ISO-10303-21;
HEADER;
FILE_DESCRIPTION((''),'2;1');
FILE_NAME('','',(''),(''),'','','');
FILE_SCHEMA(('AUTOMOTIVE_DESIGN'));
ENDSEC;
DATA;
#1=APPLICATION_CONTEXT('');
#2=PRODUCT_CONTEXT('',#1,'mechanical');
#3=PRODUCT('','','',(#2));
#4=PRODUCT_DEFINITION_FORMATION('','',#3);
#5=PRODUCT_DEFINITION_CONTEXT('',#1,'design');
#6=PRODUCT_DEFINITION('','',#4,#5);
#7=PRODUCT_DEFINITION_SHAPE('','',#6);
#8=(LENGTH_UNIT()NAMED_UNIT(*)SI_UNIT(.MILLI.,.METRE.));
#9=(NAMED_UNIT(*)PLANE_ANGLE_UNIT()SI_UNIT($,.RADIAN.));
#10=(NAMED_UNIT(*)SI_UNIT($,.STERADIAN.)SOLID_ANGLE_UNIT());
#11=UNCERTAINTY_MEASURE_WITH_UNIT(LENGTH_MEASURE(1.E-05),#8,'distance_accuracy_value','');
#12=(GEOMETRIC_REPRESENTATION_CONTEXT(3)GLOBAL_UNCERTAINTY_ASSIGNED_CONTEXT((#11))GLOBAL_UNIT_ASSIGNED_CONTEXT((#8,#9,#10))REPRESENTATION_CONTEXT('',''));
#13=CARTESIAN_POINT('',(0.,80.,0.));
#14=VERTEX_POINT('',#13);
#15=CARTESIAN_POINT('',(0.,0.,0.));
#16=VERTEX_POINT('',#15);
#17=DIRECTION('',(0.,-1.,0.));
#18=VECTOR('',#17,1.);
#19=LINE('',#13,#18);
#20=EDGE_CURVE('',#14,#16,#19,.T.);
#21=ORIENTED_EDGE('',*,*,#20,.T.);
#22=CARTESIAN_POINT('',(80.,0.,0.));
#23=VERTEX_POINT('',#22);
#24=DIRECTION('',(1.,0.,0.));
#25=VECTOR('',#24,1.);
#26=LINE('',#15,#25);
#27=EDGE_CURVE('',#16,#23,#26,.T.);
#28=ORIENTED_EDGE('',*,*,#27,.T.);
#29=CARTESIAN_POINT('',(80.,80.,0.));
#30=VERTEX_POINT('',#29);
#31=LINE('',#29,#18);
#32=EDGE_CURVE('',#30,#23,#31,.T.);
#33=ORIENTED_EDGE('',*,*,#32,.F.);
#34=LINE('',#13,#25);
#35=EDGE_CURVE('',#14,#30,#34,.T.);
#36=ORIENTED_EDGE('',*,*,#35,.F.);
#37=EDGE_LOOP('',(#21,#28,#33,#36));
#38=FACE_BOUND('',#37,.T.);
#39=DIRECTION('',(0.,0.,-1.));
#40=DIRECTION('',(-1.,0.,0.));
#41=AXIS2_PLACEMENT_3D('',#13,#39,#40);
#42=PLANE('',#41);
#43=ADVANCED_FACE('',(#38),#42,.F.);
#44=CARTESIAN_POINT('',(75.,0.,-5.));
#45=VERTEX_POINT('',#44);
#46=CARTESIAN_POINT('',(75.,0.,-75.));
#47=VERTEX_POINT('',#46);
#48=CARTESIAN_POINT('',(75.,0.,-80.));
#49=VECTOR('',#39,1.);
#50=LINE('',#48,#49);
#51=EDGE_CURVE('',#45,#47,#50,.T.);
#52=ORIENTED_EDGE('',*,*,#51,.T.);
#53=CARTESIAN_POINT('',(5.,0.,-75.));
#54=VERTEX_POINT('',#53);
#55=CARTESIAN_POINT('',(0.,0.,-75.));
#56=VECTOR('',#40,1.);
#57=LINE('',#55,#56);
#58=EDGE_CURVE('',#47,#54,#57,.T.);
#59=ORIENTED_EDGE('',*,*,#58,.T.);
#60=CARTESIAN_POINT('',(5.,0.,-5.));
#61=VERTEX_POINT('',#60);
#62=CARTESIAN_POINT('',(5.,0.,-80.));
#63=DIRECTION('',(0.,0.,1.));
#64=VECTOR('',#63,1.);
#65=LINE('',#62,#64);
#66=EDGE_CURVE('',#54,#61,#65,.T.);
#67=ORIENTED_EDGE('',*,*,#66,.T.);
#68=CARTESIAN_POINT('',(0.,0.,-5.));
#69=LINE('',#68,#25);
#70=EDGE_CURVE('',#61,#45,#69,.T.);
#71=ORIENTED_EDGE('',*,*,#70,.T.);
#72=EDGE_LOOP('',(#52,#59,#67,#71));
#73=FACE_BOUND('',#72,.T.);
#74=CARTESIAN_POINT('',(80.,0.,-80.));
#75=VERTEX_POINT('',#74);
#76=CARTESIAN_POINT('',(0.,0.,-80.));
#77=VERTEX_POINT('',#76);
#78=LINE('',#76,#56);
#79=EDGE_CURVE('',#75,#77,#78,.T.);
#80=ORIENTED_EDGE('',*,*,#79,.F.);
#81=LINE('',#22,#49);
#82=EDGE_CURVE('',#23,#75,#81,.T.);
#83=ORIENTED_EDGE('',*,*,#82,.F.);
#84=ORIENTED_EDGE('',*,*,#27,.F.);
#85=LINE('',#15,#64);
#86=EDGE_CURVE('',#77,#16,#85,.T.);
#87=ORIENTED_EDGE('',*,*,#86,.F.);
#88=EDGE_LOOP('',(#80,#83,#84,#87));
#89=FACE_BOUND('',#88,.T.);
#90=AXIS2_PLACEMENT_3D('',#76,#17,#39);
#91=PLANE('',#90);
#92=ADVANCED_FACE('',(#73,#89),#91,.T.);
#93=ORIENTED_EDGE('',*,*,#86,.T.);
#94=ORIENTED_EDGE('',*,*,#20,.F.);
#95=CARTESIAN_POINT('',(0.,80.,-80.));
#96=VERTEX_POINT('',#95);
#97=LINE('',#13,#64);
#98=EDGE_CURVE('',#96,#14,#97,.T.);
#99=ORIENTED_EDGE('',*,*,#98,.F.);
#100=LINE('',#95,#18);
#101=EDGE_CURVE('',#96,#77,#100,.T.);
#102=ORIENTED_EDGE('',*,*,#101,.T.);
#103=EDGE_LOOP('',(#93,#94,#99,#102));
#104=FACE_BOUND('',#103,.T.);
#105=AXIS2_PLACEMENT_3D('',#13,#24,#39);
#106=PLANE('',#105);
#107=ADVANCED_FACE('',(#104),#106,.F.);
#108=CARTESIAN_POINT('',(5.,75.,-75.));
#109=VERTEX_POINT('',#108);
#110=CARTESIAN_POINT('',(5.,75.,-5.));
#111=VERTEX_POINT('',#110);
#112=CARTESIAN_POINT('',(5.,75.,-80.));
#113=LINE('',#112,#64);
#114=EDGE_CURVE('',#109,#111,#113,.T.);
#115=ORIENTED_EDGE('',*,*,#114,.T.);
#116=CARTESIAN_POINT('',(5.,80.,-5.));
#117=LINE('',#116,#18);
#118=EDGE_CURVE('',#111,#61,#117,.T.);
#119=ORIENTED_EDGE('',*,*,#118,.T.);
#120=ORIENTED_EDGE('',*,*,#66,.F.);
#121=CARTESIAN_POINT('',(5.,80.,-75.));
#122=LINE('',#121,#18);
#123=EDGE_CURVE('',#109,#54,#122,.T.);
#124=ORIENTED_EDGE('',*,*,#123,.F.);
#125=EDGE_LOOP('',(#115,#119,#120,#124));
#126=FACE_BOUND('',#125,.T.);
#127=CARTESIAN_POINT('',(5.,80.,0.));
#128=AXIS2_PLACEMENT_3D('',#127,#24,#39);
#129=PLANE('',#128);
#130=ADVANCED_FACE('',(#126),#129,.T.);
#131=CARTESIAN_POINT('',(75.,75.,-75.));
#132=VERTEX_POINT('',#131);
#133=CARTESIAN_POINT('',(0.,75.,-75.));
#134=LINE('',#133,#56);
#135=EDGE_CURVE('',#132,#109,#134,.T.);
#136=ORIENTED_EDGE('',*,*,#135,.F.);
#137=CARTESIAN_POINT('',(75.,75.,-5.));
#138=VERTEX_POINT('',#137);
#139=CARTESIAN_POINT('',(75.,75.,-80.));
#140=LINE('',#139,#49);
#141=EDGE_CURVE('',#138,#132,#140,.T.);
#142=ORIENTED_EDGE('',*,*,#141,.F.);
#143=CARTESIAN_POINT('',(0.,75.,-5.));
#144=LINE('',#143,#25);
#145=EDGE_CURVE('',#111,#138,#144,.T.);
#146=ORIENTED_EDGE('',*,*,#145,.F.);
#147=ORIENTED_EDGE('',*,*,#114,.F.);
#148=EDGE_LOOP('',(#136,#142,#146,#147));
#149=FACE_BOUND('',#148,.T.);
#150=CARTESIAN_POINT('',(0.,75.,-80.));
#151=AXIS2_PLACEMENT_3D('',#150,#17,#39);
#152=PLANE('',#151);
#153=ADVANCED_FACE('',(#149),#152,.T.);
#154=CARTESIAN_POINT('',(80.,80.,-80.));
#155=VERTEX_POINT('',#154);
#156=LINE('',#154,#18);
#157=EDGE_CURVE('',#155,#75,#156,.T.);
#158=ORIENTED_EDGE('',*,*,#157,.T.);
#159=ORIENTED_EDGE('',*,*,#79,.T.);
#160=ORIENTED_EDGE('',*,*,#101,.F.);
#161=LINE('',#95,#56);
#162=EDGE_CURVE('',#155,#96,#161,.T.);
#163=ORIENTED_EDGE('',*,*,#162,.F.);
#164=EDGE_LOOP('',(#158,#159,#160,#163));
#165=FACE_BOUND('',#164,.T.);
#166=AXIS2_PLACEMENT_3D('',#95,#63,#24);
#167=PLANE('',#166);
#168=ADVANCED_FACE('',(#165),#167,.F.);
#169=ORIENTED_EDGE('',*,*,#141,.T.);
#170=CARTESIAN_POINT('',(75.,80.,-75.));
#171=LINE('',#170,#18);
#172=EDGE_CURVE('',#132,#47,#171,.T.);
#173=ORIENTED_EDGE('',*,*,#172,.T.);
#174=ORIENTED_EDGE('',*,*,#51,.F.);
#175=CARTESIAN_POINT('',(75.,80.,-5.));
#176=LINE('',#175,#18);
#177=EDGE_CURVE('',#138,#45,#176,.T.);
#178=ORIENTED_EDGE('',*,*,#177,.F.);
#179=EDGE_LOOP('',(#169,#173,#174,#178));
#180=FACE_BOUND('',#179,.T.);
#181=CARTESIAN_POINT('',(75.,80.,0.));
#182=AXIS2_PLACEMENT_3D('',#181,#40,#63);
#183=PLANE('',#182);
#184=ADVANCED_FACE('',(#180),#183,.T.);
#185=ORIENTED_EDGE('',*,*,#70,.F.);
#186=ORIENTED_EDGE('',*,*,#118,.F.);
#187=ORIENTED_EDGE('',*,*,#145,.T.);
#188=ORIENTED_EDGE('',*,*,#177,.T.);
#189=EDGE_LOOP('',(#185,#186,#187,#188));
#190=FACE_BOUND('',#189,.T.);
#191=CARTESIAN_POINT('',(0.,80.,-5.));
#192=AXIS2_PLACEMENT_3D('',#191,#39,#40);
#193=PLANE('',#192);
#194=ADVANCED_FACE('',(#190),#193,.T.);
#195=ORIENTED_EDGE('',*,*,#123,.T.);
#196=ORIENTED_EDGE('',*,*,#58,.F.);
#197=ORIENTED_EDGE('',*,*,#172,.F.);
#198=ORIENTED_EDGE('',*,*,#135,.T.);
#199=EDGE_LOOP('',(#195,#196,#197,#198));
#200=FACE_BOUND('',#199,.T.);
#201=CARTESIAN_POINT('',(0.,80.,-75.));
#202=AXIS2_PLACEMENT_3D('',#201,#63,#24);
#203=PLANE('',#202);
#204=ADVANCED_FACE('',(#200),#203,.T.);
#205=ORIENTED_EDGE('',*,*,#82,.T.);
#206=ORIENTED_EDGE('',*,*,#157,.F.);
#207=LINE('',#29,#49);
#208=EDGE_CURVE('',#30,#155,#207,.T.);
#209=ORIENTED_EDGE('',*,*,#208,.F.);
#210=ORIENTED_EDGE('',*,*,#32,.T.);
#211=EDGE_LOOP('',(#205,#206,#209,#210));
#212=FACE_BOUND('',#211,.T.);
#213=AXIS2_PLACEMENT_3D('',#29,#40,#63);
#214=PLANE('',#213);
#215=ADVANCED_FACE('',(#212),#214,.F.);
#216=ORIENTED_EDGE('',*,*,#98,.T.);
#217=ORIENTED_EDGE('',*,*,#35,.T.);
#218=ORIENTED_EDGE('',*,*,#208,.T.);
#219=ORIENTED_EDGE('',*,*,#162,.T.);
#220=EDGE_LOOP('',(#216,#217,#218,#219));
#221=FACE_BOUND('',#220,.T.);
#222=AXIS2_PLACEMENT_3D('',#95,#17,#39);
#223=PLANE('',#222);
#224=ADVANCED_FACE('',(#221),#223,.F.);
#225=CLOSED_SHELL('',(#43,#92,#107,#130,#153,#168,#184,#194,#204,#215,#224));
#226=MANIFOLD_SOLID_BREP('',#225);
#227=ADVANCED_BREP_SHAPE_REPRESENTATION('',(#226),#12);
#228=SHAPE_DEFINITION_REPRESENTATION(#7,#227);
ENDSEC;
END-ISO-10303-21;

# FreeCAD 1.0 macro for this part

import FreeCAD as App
import Part
import Sketcher
Q = App.Units.Quantity


def faces_at(feature, points):
    """Names of the faces that lie closest to the given points."""
    faces = feature.Shape.Faces
    near = lambda p: min(range(len(faces)), key=lambda i: faces[i].distToShape(Part.Vertex(*p))[0])
    return sorted({f"Face{near(p) + 1}" for p in points})

doc = App.newDocument("Part")
params = doc.addObject("Spreadsheet::Sheet", "Params")
for row, (alias, value) in enumerate([
    ("sketch1_width", "80 mm"),
    ("pad1_length", "80 mm"),
    ("thickness_wall", "5 mm"),
], start=1):
    params.set(f"A{row}", alias)
    params.set(f"B{row}", "=" + value)
    params.setAlias(f"B{row}", alias)

body = doc.addObject("PartDesign::Body", "Body")

# Sketch on XZ plane
sketch1 = doc.addObject("Sketcher::SketchObject", "Sketch")
body.addObject(sketch1)
sketch1.AttachmentSupport = (doc.XZ_Plane, [""])
sketch1.MapMode = "FlatFace"
sketch1.addGeometry([
    Part.LineSegment(App.Vector(0, -80, 0), App.Vector(0, 0, 0)),
    Part.LineSegment(App.Vector(0, 0, 0), App.Vector(80, 0, 0)),
    Part.LineSegment(App.Vector(80, 0, 0), App.Vector(80, -80, 0)),
    Part.LineSegment(App.Vector(80, -80, 0), App.Vector(0, -80, 0)),
], False)
sketch1.addConstraint([
    Sketcher.Constraint("Coincident", 0, 2, 1, 1),
    Sketcher.Constraint("Coincident", 1, 2, 2, 1),
    Sketcher.Constraint("Coincident", 2, 2, 3, 1),
    Sketcher.Constraint("Coincident", 3, 2, 0, 1),
    Sketcher.Constraint("Vertical", 0),
    Sketcher.Constraint("Horizontal", 1),
    Sketcher.Constraint("Vertical", 2),
    Sketcher.Constraint("Horizontal", 3),
    Sketcher.Constraint("Coincident", 0, 2, -1, 1),
    Sketcher.Constraint("Equal", 3, 0),
    Sketcher.Constraint("DistanceX", 1, 1, 1, 2, Q("80 mm")),
])
sketch1.setExpression("Constraints[10]", "Params.sketch1_width")
pad1 = doc.addObject("PartDesign::Pad", "Pad")
body.addObject(pad1)
pad1.Profile = sketch1
pad1.setExpression("Length", "Params.pad1_length")
pad1.Reversed = True
doc.recompute()

thickness = doc.addObject("PartDesign::Thickness", "Thickness")
body.addObject(thickness)
thickness.Base = (pad1, faces_at(pad1, [(40, 0, -40)]))
thickness.setExpression("Value", "Params.thickness_wall")
thickness.Reversed = True
thickness.Join = "Intersection"

doc.recompute()
